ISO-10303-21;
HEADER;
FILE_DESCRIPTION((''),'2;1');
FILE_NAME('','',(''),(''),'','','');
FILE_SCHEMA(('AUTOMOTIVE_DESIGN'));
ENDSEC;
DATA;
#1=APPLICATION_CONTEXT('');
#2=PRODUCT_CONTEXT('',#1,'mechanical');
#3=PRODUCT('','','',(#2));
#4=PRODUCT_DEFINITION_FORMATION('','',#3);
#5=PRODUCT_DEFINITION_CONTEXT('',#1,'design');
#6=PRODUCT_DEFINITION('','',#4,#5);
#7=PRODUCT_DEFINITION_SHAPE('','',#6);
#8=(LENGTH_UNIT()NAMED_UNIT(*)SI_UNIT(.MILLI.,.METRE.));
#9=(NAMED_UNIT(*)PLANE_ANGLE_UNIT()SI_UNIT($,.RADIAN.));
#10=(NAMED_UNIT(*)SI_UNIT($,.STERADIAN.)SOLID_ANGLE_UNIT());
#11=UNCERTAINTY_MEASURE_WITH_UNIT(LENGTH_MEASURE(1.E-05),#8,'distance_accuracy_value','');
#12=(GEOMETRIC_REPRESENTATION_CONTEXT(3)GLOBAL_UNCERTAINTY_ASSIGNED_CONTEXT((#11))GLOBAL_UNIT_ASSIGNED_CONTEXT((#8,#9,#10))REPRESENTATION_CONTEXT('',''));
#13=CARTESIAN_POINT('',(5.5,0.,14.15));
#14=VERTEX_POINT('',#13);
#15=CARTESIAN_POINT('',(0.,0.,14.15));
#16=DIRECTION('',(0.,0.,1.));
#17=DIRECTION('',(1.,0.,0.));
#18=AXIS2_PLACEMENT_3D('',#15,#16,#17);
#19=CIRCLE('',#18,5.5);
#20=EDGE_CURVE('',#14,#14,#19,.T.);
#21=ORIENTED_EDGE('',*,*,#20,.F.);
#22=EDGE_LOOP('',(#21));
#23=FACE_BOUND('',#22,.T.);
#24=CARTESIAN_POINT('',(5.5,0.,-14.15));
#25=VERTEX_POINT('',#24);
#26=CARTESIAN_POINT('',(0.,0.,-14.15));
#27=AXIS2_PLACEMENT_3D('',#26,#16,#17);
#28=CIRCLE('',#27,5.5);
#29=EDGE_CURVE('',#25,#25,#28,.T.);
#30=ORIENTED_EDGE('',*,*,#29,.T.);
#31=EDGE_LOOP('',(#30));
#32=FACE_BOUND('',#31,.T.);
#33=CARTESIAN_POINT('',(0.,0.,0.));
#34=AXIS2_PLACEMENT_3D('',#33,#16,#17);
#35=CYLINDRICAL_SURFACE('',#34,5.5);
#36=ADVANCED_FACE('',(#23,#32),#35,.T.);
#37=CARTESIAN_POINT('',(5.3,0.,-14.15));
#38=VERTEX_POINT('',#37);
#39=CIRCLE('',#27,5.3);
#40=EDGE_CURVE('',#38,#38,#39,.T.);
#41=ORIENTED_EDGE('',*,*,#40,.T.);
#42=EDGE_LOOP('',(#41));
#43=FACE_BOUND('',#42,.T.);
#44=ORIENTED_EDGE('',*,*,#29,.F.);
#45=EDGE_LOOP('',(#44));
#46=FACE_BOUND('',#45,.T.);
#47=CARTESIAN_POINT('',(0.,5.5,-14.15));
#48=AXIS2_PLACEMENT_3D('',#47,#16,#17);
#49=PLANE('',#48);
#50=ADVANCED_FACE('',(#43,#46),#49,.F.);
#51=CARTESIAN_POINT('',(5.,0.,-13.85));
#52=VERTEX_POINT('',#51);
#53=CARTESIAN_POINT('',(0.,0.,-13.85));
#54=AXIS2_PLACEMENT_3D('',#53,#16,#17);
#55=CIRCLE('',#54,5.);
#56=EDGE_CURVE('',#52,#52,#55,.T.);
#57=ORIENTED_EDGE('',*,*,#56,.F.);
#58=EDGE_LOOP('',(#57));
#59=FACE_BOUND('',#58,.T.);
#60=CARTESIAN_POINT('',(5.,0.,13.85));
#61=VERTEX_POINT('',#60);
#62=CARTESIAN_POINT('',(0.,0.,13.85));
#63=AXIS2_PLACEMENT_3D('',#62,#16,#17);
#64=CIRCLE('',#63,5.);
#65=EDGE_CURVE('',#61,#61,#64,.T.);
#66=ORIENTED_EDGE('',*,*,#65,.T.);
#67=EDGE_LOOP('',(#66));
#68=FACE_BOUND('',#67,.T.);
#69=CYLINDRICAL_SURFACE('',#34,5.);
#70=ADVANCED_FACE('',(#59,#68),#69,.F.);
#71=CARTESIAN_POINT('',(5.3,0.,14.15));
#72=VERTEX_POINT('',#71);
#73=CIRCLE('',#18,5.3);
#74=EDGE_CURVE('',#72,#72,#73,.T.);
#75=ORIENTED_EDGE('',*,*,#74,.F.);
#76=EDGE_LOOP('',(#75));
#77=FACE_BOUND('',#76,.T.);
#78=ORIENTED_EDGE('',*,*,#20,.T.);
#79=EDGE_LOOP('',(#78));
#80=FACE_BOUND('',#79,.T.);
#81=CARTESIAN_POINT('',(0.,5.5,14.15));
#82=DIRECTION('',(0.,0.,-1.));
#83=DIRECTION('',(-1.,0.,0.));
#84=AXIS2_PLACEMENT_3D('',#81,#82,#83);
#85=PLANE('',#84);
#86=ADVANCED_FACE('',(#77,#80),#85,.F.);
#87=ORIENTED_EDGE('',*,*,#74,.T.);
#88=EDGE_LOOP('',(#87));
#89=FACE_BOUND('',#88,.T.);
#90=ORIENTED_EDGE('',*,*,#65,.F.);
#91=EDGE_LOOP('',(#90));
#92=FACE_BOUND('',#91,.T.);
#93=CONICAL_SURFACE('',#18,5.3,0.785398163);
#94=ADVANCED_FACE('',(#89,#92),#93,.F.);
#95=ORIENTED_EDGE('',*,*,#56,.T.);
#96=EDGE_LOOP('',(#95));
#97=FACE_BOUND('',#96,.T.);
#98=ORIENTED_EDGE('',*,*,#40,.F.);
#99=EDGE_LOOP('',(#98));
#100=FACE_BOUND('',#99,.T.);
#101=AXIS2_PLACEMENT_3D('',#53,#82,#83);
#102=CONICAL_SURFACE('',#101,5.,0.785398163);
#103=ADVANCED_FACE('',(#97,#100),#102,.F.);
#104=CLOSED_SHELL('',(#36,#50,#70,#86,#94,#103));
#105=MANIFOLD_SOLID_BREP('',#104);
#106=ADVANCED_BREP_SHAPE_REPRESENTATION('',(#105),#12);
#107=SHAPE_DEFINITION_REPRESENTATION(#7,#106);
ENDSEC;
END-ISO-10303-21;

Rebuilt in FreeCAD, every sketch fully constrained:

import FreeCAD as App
import Part
import Sketcher
from FreeCAD import Vector


def add_polygon(sketch, points):
    """Adds a closed chain of lines whose ends are joined by coincident constraints."""
    first, n = sketch.GeometryCount, len(points)
    for a, b in zip(points, points[1:] + points[:1]):
        sketch.addGeometry(Part.LineSegment(App.Vector(*a, 0), App.Vector(*b, 0)), False)
    for i in range(n):
        sketch.addConstraint(Sketcher.Constraint("Coincident", first + i, 2, first + (i + 1) % n, 1))

doc = App.newDocument("Part")
body = doc.addObject("PartDesign::Body", "Body")

sketch1 = body.newObject("Sketcher::SketchObject", "Sketch")
sketch1.AttachmentSupport = (doc.getObject("YZ_Plane"), [""])
sketch1.MapMode = "FlatFace"
add_polygon(sketch1, [(5.5, -14.15), (5.5, 14.15), (5.3, 14.15), (5, 13.85), (5, -13.85), (5.3, -14.15)])
sketch1.addConstraint(Sketcher.Constraint("Vertical", 0))
sketch1.addConstraint(Sketcher.Constraint("Horizontal", 1))
sketch1.addConstraint(Sketcher.Constraint("Vertical", 3))
sketch1.addConstraint(Sketcher.Constraint("Horizontal", 5))
sketch1.addConstraint(Sketcher.Constraint("Symmetric", 1, 2, 4, 2, -1))
sketch1.addConstraint(Sketcher.Constraint("Perpendicular", 2, 4))
sketch1.addConstraint(Sketcher.Constraint("Equal", 2, 4))
sketch1.addConstraint(Sketcher.Constraint("DistanceX", 1, 2, 1, 1, 0.2))
sketch1.addConstraint(Sketcher.Constraint("DistanceY", 0, 1, 0, 2, 28.3))
sketch1.addConstraint(Sketcher.Constraint("DistanceY", 3, 2, 3, 1, 27.7))
sketch1.addConstraint(Sketcher.Constraint("DistanceX", -1, 1, 2, 2, 5.0))
revolution = body.newObject("PartDesign::Revolution", "Revolution")
revolution.Profile = sketch1
revolution.ReferenceAxis = (sketch1, ["V_Axis"])
revolution.Angle = 360

doc.recompute()
